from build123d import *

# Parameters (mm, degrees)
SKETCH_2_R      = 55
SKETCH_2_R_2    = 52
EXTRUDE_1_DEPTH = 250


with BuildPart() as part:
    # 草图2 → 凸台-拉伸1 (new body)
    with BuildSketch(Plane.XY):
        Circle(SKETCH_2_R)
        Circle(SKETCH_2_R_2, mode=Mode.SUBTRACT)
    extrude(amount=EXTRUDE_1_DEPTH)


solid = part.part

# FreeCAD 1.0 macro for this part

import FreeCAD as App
import Part
import Sketcher
from FreeCAD import Vector

doc = App.newDocument("Part")
body = doc.addObject("PartDesign::Body", "Body")

sketch1 = doc.addObject("Sketcher::SketchObject", "Sketch")
body.addObject(sketch1)
sketch1.AttachmentSupport = (doc.XY_Plane, [""])
sketch1.MapMode = "FlatFace"
sketch1.addGeometry([
    Part.Circle(Vector(0, 0, 0), Vector(0, 0, 1), 55),
    Part.Circle(Vector(0, 0, 0), Vector(0, 0, 1), 52),
], False)
sketch1.addConstraint([
    Sketcher.Constraint("Coincident", 0, 3, -1, 1),
    Sketcher.Constraint("Coincident", 1, 3, -1, 1),
    Sketcher.Constraint("Diameter", 0, 110.0),
    Sketcher.Constraint("Diameter", 1, 104.0),
])
pad1 = doc.addObject("PartDesign::Pad", "Pad")
body.addObject(pad1)
pad1.Profile = sketch1
pad1.Length = 250

doc.recompute()
